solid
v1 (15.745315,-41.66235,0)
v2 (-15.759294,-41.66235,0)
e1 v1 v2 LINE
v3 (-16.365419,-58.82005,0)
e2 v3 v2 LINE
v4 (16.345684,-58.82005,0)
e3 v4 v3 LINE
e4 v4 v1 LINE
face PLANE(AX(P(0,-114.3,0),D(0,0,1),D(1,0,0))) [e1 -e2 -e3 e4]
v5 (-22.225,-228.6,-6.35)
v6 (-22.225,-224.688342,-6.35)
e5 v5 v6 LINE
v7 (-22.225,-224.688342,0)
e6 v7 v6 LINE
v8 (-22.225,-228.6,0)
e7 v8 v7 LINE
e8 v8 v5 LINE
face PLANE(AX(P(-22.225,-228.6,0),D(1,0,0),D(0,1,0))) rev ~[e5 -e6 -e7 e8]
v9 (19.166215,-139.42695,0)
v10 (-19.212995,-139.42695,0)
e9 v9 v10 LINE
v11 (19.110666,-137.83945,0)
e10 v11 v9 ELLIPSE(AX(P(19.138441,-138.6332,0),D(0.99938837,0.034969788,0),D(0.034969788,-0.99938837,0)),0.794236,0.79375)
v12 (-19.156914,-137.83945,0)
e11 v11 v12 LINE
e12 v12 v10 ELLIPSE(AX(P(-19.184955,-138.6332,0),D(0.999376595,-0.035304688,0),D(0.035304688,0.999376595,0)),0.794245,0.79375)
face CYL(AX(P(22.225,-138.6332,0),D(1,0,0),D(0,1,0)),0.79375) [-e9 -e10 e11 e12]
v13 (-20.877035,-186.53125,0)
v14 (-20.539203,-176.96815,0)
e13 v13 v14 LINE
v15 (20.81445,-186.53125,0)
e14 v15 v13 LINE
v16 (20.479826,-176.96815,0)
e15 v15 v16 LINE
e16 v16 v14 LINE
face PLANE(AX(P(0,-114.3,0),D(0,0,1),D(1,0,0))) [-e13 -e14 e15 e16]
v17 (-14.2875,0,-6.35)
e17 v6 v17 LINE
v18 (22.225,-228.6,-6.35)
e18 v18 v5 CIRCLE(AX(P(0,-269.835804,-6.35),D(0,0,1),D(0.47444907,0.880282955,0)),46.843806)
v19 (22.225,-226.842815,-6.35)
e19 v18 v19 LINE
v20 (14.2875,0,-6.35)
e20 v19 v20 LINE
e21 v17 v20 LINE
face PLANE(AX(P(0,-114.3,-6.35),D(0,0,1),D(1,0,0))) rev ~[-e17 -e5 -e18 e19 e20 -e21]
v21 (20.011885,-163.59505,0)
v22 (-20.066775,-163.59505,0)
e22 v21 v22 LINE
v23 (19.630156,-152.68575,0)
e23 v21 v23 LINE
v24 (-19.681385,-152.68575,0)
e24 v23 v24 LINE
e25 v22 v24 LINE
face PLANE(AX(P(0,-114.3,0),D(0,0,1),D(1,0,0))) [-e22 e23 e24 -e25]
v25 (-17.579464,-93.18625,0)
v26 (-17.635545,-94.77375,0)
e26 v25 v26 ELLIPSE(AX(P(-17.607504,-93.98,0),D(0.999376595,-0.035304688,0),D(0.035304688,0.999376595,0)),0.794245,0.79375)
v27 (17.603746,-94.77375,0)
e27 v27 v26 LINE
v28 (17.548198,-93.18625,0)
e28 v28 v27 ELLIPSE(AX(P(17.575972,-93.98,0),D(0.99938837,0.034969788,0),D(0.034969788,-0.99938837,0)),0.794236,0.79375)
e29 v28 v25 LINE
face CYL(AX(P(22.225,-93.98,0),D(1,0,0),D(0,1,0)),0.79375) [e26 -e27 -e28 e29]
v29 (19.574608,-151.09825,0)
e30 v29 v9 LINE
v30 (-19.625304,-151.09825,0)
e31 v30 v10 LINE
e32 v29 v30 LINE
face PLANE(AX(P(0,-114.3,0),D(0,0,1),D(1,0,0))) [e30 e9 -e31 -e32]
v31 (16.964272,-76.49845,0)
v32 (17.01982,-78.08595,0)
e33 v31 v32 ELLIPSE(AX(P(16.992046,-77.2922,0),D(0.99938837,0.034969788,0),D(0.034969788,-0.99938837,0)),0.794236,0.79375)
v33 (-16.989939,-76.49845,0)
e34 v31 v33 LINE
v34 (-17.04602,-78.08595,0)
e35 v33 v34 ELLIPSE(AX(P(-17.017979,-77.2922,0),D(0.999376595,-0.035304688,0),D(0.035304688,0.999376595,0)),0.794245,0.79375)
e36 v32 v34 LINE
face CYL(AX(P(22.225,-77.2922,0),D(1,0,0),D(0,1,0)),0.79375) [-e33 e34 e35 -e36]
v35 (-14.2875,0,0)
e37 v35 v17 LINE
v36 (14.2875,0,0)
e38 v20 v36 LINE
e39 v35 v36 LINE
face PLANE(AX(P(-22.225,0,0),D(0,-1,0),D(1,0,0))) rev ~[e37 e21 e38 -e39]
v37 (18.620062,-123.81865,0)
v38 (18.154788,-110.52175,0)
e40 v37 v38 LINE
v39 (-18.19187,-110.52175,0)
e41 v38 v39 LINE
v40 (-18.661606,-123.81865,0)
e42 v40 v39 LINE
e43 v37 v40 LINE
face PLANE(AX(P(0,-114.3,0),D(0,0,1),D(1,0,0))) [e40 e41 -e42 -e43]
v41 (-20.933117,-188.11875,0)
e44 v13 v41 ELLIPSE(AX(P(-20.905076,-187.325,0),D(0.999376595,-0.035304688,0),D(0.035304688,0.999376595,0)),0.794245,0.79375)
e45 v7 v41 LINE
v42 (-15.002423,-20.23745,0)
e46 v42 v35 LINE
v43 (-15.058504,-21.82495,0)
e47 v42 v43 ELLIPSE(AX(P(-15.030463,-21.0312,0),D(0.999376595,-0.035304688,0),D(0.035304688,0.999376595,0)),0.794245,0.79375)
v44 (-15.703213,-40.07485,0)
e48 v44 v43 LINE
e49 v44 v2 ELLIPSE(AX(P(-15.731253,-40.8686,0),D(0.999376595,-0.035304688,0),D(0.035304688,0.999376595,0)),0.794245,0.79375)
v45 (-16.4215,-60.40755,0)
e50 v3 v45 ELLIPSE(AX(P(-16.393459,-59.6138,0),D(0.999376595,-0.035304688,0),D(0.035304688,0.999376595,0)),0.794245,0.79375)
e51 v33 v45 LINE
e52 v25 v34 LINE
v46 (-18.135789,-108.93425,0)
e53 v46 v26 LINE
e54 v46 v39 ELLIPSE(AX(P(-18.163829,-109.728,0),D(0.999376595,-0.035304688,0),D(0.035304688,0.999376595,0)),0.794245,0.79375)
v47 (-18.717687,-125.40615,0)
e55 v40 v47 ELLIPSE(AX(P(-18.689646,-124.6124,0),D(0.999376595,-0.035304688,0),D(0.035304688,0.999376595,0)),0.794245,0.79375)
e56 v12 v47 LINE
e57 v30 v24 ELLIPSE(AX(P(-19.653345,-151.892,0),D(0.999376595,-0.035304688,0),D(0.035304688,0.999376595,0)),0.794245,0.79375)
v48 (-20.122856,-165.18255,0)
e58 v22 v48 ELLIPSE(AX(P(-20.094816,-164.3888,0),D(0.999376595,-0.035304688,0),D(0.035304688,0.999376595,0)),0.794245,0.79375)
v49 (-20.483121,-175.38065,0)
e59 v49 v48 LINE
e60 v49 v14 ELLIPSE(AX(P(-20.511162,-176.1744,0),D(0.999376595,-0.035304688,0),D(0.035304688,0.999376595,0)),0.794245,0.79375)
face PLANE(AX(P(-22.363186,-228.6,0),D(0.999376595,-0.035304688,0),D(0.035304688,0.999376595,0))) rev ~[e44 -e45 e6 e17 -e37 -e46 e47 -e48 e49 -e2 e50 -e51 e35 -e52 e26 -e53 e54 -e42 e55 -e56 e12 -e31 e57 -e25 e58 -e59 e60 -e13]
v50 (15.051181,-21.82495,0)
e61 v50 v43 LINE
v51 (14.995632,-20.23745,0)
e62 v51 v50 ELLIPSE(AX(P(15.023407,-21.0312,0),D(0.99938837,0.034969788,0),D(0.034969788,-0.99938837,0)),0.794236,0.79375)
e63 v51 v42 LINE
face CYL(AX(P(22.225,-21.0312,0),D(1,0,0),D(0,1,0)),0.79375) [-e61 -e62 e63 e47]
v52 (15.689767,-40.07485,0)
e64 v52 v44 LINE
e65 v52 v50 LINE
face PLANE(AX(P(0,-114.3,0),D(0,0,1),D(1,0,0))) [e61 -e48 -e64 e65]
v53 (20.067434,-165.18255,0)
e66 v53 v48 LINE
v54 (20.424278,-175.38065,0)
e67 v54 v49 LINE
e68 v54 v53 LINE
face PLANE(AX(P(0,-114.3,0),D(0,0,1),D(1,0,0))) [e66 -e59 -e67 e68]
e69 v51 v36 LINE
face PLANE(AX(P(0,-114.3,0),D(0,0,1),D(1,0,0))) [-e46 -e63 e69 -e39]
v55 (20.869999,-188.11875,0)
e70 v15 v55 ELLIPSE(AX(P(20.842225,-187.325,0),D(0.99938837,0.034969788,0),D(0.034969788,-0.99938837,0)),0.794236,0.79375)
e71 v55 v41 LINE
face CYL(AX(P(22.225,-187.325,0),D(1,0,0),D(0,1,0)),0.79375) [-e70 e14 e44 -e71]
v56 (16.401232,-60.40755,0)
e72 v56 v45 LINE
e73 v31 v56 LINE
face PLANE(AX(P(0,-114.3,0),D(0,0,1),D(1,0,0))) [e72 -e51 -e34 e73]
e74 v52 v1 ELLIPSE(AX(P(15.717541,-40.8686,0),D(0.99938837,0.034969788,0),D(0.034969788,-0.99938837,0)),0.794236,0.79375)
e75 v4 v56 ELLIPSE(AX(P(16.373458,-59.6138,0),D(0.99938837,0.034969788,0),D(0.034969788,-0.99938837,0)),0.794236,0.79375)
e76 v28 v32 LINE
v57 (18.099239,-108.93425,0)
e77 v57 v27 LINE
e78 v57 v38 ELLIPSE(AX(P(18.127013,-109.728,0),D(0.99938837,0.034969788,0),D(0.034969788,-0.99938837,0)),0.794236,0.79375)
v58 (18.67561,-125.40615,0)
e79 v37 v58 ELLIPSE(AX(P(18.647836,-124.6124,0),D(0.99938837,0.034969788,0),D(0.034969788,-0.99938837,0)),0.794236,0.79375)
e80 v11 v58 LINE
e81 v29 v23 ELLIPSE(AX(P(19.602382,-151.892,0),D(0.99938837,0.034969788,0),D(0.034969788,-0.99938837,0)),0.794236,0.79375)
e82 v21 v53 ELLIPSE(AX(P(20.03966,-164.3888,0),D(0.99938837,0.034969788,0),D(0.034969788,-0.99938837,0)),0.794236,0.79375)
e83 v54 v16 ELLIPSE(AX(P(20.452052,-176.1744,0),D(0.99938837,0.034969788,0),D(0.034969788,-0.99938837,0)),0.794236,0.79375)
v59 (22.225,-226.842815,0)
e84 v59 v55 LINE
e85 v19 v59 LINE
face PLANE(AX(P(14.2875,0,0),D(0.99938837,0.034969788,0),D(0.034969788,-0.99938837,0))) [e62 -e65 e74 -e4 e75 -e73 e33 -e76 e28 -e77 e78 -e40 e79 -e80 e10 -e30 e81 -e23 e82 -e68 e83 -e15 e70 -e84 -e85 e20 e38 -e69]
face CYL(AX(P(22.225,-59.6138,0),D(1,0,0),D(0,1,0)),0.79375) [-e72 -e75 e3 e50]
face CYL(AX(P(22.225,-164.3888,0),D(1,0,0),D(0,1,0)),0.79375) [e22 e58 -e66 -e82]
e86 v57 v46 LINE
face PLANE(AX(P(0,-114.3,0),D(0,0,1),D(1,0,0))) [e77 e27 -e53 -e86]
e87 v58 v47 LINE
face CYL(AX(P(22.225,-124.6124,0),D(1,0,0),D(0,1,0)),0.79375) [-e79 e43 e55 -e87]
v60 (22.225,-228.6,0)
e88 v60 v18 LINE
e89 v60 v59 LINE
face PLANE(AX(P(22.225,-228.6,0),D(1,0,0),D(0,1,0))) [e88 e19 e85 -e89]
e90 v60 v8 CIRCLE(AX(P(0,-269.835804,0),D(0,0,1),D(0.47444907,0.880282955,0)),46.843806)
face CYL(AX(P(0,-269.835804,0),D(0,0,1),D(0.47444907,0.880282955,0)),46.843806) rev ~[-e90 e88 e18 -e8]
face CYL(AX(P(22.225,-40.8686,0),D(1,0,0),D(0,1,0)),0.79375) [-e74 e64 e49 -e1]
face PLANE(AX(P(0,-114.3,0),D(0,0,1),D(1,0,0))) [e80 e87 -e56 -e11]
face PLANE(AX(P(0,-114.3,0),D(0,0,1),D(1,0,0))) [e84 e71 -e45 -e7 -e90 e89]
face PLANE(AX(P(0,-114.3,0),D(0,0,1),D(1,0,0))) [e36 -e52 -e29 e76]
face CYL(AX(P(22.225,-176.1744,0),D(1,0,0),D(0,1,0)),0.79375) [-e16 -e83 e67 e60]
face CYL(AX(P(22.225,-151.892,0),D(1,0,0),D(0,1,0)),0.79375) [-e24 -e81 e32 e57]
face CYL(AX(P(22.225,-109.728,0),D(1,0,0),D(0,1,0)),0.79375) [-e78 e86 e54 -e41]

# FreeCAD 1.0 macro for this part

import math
import FreeCAD as App
import Part
import Sketcher

V = App.Vector
Q = App.Units.Quantity

doc = App.newDocument("Part")
body = doc.addObject("PartDesign::Body", "Body")

# Sketch on XY plane
sketch1 = body.newObject("Sketcher::SketchObject", "Sketch")
sketch1.AttachmentSupport = (doc.getObject("XY_Plane"), [""])
sketch1.MapMode = "FlatFace"
sketch1.addGeometry([
    Part.LineSegment(V(-22.225, 0, 0), V(-22.225, -228.6, 0)),
    Part.LineSegment(V(-22.225, -228.6, 0), V(22.225, -228.6, 0)),
    Part.LineSegment(V(22.225, -228.6, 0), V(22.225, 0, 0)),
    Part.LineSegment(V(22.225, 0, 0), V(-22.225, 0, 0)),
], False)
sketch1.addConstraint([
    Sketcher.Constraint("Coincident", 0, 2, 1, 1),
    Sketcher.Constraint("Coincident", 1, 2, 2, 1),
    Sketcher.Constraint("Coincident", 2, 2, 3, 1),
    Sketcher.Constraint("Coincident", 3, 2, 0, 1),
    Sketcher.Constraint("Vertical", 0),
    Sketcher.Constraint("Horizontal", 1),
    Sketcher.Constraint("Vertical", 2),
    Sketcher.Constraint("Horizontal", 3),
    Sketcher.Constraint("Symmetric", 2, 2, 3, 2, -1, 1),
    Sketcher.Constraint("DistanceY", 0, 2, 0, 1, Q("9 in")),
    Sketcher.Constraint("DistanceX", 1, 1, 1, 2, Q("1.75 in")),
])
pad1 = body.newObject("PartDesign::Pad", "Pad")
pad1.Profile = sketch1
pad1.Length = Q("0.25 in")
pad1.Reversed = True

# Sketch on YZ plane
sketch2 = body.newObject("Sketcher::SketchObject", "Sketch001")
sketch2.AttachmentSupport = (doc.getObject("YZ_Plane"), [""])
sketch2.MapMode = "FlatFace"
sketch2.AttachmentOffset = App.Placement(V(0, 0, 0.875 * 25.4), App.Rotation())
sketch2.addGeometry([
    Part.ArcOfCircle(Part.Circle(V(-21.0312, 0, 0), V(0, 0, 1), 0.79375), math.radians(-179.999998), math.radians(-90.000002)),  # 0
    Part.ArcOfCircle(Part.Circle(V(-21.0312, 0, 0), V(0, 0, 1), 0.79375), math.radians(-89.999998), math.radians(-0.000002)),  # 1
    Part.ArcOfCircle(Part.Circle(V(-21.0312, 0, 0), V(0, 0, 1), 0.79375), math.radians(0), math.radians(180)),  # 2
    Part.ArcOfCircle(Part.Circle(V(-40.8686, 0, 0), V(0, 0, 1), 0.79375), math.radians(-179.999998), math.radians(-90.000002)),  # 3
    Part.ArcOfCircle(Part.Circle(V(-40.8686, 0, 0), V(0, 0, 1), 0.79375), math.radians(-89.999998), math.radians(-0.000002)),  # 4
    Part.ArcOfCircle(Part.Circle(V(-40.8686, 0, 0), V(0, 0, 1), 0.79375), math.radians(0), math.radians(180)),  # 5
    Part.ArcOfCircle(Part.Circle(V(-59.6138, 0, 0), V(0, 0, 1), 0.79375), math.radians(-179.999998), math.radians(-90.000002)),  # 6
    Part.ArcOfCircle(Part.Circle(V(-59.6138, 0, 0), V(0, 0, 1), 0.79375), math.radians(-89.999998), math.radians(-0.000002)),  # 7
    Part.ArcOfCircle(Part.Circle(V(-59.6138, 0, 0), V(0, 0, 1), 0.79375), math.radians(0), math.radians(180)),  # 8
    Part.ArcOfCircle(Part.Circle(V(-77.2922, 0, 0), V(0, 0, 1), 0.79375), math.radians(-179.999998), math.radians(-90.000002)),  # 9
    Part.ArcOfCircle(Part.Circle(V(-77.2922, 0, 0), V(0, 0, 1), 0.79375), math.radians(-89.999998), math.radians(-0.000002)),  # 10
    Part.ArcOfCircle(Part.Circle(V(-77.2922, 0, 0), V(0, 0, 1), 0.79375), math.radians(0), math.radians(180)),  # 11
    Part.ArcOfCircle(Part.Circle(V(-93.98, 0, 0), V(0, 0, 1), 0.79375), math.radians(-179.999998), math.radians(-90.000002)),  # 12
    Part.ArcOfCircle(Part.Circle(V(-93.98, 0, 0), V(0, 0, 1), 0.79375), math.radians(-89.999998), math.radians(-0.000002)),  # 13
    Part.ArcOfCircle(Part.Circle(V(-93.98, 0, 0), V(0, 0, 1), 0.79375), math.radians(0), math.radians(180)),  # 14
    Part.ArcOfCircle(Part.Circle(V(-109.728, 0, 0), V(0, 0, 1), 0.79375), math.radians(-179.999998), math.radians(-90.000002)),  # 15
    Part.ArcOfCircle(Part.Circle(V(-109.728, 0, 0), V(0, 0, 1), 0.79375), math.radians(-89.999998), math.radians(-0.000002)),  # 16
    Part.ArcOfCircle(Part.Circle(V(-109.728, 0, 0), V(0, 0, 1), 0.79375), math.radians(0), math.radians(180)),  # 17
    Part.ArcOfCircle(Part.Circle(V(-124.6124, 0, 0), V(0, 0, 1), 0.79375), math.radians(-179.999998), math.radians(-90.000002)),  # 18
    Part.ArcOfCircle(Part.Circle(V(-124.6124, 0, 0), V(0, 0, 1), 0.79375), math.radians(-89.999998), math.radians(-0.000002)),  # 19
    Part.ArcOfCircle(Part.Circle(V(-124.6124, 0, 0), V(0, 0, 1), 0.79375), math.radians(0), math.radians(180)),  # 20
    Part.ArcOfCircle(Part.Circle(V(-138.6332, 0, 0), V(0, 0, 1), 0.79375), math.radians(-179.999998), math.radians(-90.000002)),  # 21
    Part.ArcOfCircle(Part.Circle(V(-138.6332, 0, 0), V(0, 0, 1), 0.79375), math.radians(-89.999998), math.radians(-0.000002)),  # 22
    Part.ArcOfCircle(Part.Circle(V(-138.6332, 0, 0), V(0, 0, 1), 0.79375), math.radians(0), math.radians(180)),  # 23
    Part.ArcOfCircle(Part.Circle(V(-151.892, 0, 0), V(0, 0, 1), 0.79375), math.radians(-179.999998), math.radians(-90.000002)),  # 24
    Part.ArcOfCircle(Part.Circle(V(-151.892, 0, 0), V(0, 0, 1), 0.79375), math.radians(-89.999998), math.radians(-0.000002)),  # 25
    Part.ArcOfCircle(Part.Circle(V(-151.892, 0, 0), V(0, 0, 1), 0.79375), math.radians(0), math.radians(180)),  # 26
    Part.ArcOfCircle(Part.Circle(V(-164.3888, 0, 0), V(0, 0, 1), 0.79375), math.radians(-179.999998), math.radians(-90.000002)),  # 27
    Part.ArcOfCircle(Part.Circle(V(-164.3888, 0, 0), V(0, 0, 1), 0.79375), math.radians(-89.999998), math.radians(-0.000002)),  # 28
    Part.ArcOfCircle(Part.Circle(V(-164.3888, 0, 0), V(0, 0, 1), 0.79375), math.radians(0), math.radians(180)),  # 29
    Part.ArcOfCircle(Part.Circle(V(-176.1744, 0, 0), V(0, 0, 1), 0.79375), math.radians(-179.999998), math.radians(-90.000002)),  # 30
    Part.ArcOfCircle(Part.Circle(V(-176.1744, 0, 0), V(0, 0, 1), 0.79375), math.radians(-89.999998), math.radians(-0.000002)),  # 31
    Part.ArcOfCircle(Part.Circle(V(-176.1744, 0, 0), V(0, 0, 1), 0.79375), math.radians(0), math.radians(180)),  # 32
    Part.ArcOfCircle(Part.Circle(V(-187.325, 0, 0), V(0, 0, 1), 0.79375), math.radians(-179.999998), math.radians(-90.000002)),  # 33
    Part.ArcOfCircle(Part.Circle(V(-187.325, 0, 0), V(0, 0, 1), 0.79375), math.radians(-89.999998), math.radians(-0.000002)),  # 34
    Part.ArcOfCircle(Part.Circle(V(-187.325, 0, 0), V(0, 0, 1), 0.79375), math.radians(0), math.radians(180)),  # 35
], False)
sketch2.addConstraint([
    Sketcher.Constraint("Tangent", 0, 2, 1, 1),
    Sketcher.Constraint("Tangent", 1, 2, 2, 1),
    Sketcher.Constraint("Tangent", 2, 2, 0, 1),
    Sketcher.Constraint("Tangent", 3, 2, 4, 1),
    Sketcher.Constraint("Tangent", 4, 2, 5, 1),
    Sketcher.Constraint("Tangent", 5, 2, 3, 1),
    Sketcher.Constraint("Tangent", 6, 2, 7, 1),
    Sketcher.Constraint("Tangent", 7, 2, 8, 1),
    Sketcher.Constraint("Tangent", 8, 2, 6, 1),
    Sketcher.Constraint("Tangent", 9, 2, 10, 1),
    Sketcher.Constraint("Tangent", 10, 2, 11, 1),
    Sketcher.Constraint("Tangent", 11, 2, 9, 1),
    Sketcher.Constraint("Tangent", 12, 2, 13, 1),
    Sketcher.Constraint("Tangent", 13, 2, 14, 1),
    Sketcher.Constraint("Tangent", 14, 2, 12, 1),
    Sketcher.Constraint("Tangent", 15, 2, 16, 1),
    Sketcher.Constraint("Tangent", 16, 2, 17, 1),
    Sketcher.Constraint("Tangent", 17, 2, 15, 1),
    Sketcher.Constraint("Tangent", 18, 2, 19, 1),
    Sketcher.Constraint("Tangent", 19, 2, 20, 1),
    Sketcher.Constraint("Tangent", 20, 2, 18, 1),
    Sketcher.Constraint("Tangent", 21, 2, 22, 1),
    Sketcher.Constraint("Tangent", 22, 2, 23, 1),
    Sketcher.Constraint("Tangent", 23, 2, 21, 1),
    Sketcher.Constraint("Tangent", 24, 2, 25, 1),
    Sketcher.Constraint("Tangent", 25, 2, 26, 1),
    Sketcher.Constraint("Tangent", 26, 2, 24, 1),
    Sketcher.Constraint("Tangent", 27, 2, 28, 1),
    Sketcher.Constraint("Tangent", 28, 2, 29, 1),
    Sketcher.Constraint("Tangent", 29, 2, 27, 1),
    Sketcher.Constraint("Tangent", 30, 2, 31, 1),
    Sketcher.Constraint("Tangent", 31, 2, 32, 1),
    Sketcher.Constraint("Tangent", 32, 2, 30, 1),
    Sketcher.Constraint("Tangent", 33, 2, 34, 1),
    Sketcher.Constraint("Tangent", 34, 2, 35, 1),
    Sketcher.Constraint("Tangent", 35, 2, 33, 1),
    Sketcher.Constraint("Equal", 2, 3),
    Sketcher.Constraint("Equal", 5, 6),
    Sketcher.Constraint("Equal", 8, 9),
    Sketcher.Constraint("Equal", 11, 12),
    Sketcher.Constraint("Equal", 14, 15),
    Sketcher.Constraint("Equal", 17, 18),
    Sketcher.Constraint("Equal", 20, 21),
    Sketcher.Constraint("Equal", 23, 24),
    Sketcher.Constraint("Equal", 26, 27),
    Sketcher.Constraint("Equal", 29, 30),
    Sketcher.Constraint("Equal", 32, 33),
    Sketcher.Constraint("PointOnObject", 0, 3, -1),
    Sketcher.Constraint("PointOnObject", 3, 3, -1),
    Sketcher.Constraint("PointOnObject", 6, 3, -1),
    Sketcher.Constraint("PointOnObject", 9, 3, -1),
    Sketcher.Constraint("PointOnObject", 12, 3, -1),
    Sketcher.Constraint("PointOnObject", 15, 3, -1),
    Sketcher.Constraint("PointOnObject", 18, 3, -1),
    Sketcher.Constraint("PointOnObject", 21, 3, -1),
    Sketcher.Constraint("PointOnObject", 24, 3, -1),
    Sketcher.Constraint("PointOnObject", 27, 3, -1),
    Sketcher.Constraint("PointOnObject", 30, 3, -1),
    Sketcher.Constraint("PointOnObject", 33, 3, -1),
    Sketcher.Constraint("PointOnObject", 1, 2, -1),
    Sketcher.Constraint("PointOnObject", 2, 2, -1),
    Sketcher.Constraint("PointOnObject", 4, 2, -1),
    Sketcher.Constraint("PointOnObject", 5, 2, -1),
    Sketcher.Constraint("PointOnObject", 7, 2, -1),
    Sketcher.Constraint("PointOnObject", 8, 2, -1),
    Sketcher.Constraint("PointOnObject", 10, 2, -1),
    Sketcher.Constraint("PointOnObject", 11, 2, -1),
    Sketcher.Constraint("PointOnObject", 13, 2, -1),
    Sketcher.Constraint("PointOnObject", 14, 2, -1),
    Sketcher.Constraint("PointOnObject", 16, 2, -1),
    Sketcher.Constraint("PointOnObject", 17, 2, -1),
    Sketcher.Constraint("PointOnObject", 19, 2, -1),
    Sketcher.Constraint("PointOnObject", 20, 2, -1),
    Sketcher.Constraint("PointOnObject", 22, 2, -1),
    Sketcher.Constraint("PointOnObject", 23, 2, -1),
    Sketcher.Constraint("PointOnObject", 25, 2, -1),
    Sketcher.Constraint("PointOnObject", 26, 2, -1),
    Sketcher.Constraint("PointOnObject", 28, 2, -1),
    Sketcher.Constraint("PointOnObject", 29, 2, -1),
    Sketcher.Constraint("PointOnObject", 31, 2, -1),
    Sketcher.Constraint("PointOnObject", 32, 2, -1),
    Sketcher.Constraint("PointOnObject", 34, 2, -1),
    Sketcher.Constraint("PointOnObject", 35, 2, -1),
    Sketcher.Constraint("Vertical", 2, 3, 0, 2),
    Sketcher.Constraint("Vertical", 5, 3, 3, 2),
    Sketcher.Constraint("Vertical", 8, 3, 6, 2),
    Sketcher.Constraint("Vertical", 11, 3, 9, 2),
    Sketcher.Constraint("Vertical", 14, 3, 12, 2),
    Sketcher.Constraint("Vertical", 17, 3, 15, 2),
    Sketcher.Constraint("Vertical", 20, 3, 18, 2),
    Sketcher.Constraint("Vertical", 23, 3, 21, 2),
    Sketcher.Constraint("Vertical", 26, 3, 24, 2),
    Sketcher.Constraint("Vertical", 29, 3, 27, 2),
    Sketcher.Constraint("Vertical", 32, 3, 30, 2),
    Sketcher.Constraint("Vertical", 35, 3, 33, 2),
    Sketcher.Constraint("Radius", 0, Q("0.03125 in")),
    Sketcher.Constraint("DistanceX", 12, 3, -1, 1, Q("3.7 in")),
    Sketcher.Constraint("DistanceX", 15, 3, -1, 1, Q("4.32 in")),
    Sketcher.Constraint("DistanceX", 24, 3, -1, 1, Q("5.98 in")),
    Sketcher.Constraint("DistanceX", 0, 3, -1, 1, Q("0.828 in")),
    Sketcher.Constraint("DistanceX", 3, 3, -1, 1, Q("1.609 in")),
    Sketcher.Constraint("DistanceX", 6, 3, -1, 1, Q("2.347 in")),
    Sketcher.Constraint("DistanceX", 9, 3, -1, 1, Q("3.043 in")),
    Sketcher.Constraint("DistanceX", 18, 3, -1, 1, Q("4.906 in")),
    Sketcher.Constraint("DistanceX", 21, 3, -1, 1, Q("5.458 in")),
    Sketcher.Constraint("DistanceX", 27, 3, -1, 1, Q("6.472 in")),
    Sketcher.Constraint("DistanceX", 30, 3, -1, 1, Q("6.936 in")),
    Sketcher.Constraint("DistanceX", 33, 3, -1, 1, Q("7.375 in")),
])
pad2 = body.newObject("PartDesign::Pad", "Pad001")
pad2.Profile = sketch2
pad2.Length = Q("1.75 in")
pad2.Reversed = True

# Sketch on XY plane
sketch3 = body.newObject("Sketcher::SketchObject", "Sketch002")
sketch3.AttachmentSupport = (doc.getObject("XY_Plane"), [""])
sketch3.MapMode = "FlatFace"
sketch3.addGeometry([
    Part.LineSegment(V(22.286486, 0, 0), V(14.2875, 0, 0)),  # 0
    Part.LineSegment(V(14.2875, 0, 0), V(22.286486, -228.6, 0)),  # 1
    Part.LineSegment(V(22.286486, -228.6, 0), V(22.286486, 0, 0)),  # 2
    Part.LineSegment(V(-14.2875, 0, 0), V(-22.363186, 0, 0)),  # 3
    Part.LineSegment(V(-22.363186, 0, 0), V(-22.363186, -228.6, 0)),  # 4
    Part.LineSegment(V(-22.363186, -228.6, 0), V(-14.2875, 0, 0)),  # 5
], False)
sketch3.addConstraint([
    Sketcher.Constraint("Coincident", 0, 2, 1, 1),
    Sketcher.Constraint("Coincident", 1, 2, 2, 1),
    Sketcher.Constraint("Coincident", 2, 2, 0, 1),
    Sketcher.Constraint("Coincident", 3, 2, 4, 1),
    Sketcher.Constraint("Coincident", 4, 2, 5, 1),
    Sketcher.Constraint("Coincident", 5, 2, 3, 1),
    Sketcher.Constraint("Horizontal", 0),
    Sketcher.Constraint("Vertical", 2),
    Sketcher.Constraint("Horizontal", 3),
    Sketcher.Constraint("Vertical", 4),
    Sketcher.Constraint("Symmetric", 0, 2, 5, 2, -1, 1),
    Sketcher.Constraint("PointOnObject", 0, 2, -1),
    Sketcher.Constraint("Horizontal", 1, 2, 4, 2),
    Sketcher.Constraint("DistanceY", 2, 1, 2, 2, Q("9 in")),
    Sketcher.Constraint("DistanceX", -1, 1, 0, 2, Q("0.5625 in")),
    Sketcher.Constraint("Distance", 5, Q("228.742599 mm")),
    Sketcher.Constraint("DistanceX", 0, 2, 0, 1, Q("7.998986 mm")),
])
pocket1 = body.newObject("PartDesign::Pocket", "Pocket")
pocket1.Profile = sketch3
pocket1.Length = Q("1 in")
pocket1.Midplane = True

# Sketch on XY plane
sketch4 = body.newObject("Sketcher::SketchObject", "Sketch003")
sketch4.AttachmentSupport = (doc.getObject("XY_Plane"), [""])
sketch4.MapMode = "FlatFace"
sketch4.addGeometry([
    Part.LineSegment(V(-22.225, -228.6, 0), V(22.225, -228.6, 0)),
    Part.ArcOfCircle(Part.Circle(V(0, -269.835804, 0), V(0, 0, 1), 46.843806), math.radians(61.676515), math.radians(118.323485)),
], False)
sketch4.addConstraint([
    Sketcher.Constraint("Coincident", 0, 1, 1, 2),
    Sketcher.Constraint("Coincident", 1, 1, 0, 2),
    Sketcher.Constraint("Horizontal", 0),
    Sketcher.Constraint("PointOnObject", 1, 3, -2),
    Sketcher.Constraint("DistanceY", 0, 1, -1, 1, Q("9 in")),
    Sketcher.Constraint("DistanceX", 0, 1, 0, 2, Q("1.75 in")),
    Sketcher.Constraint("Radius", 1, Q("46.843806 mm")),
])
pocket2 = body.newObject("PartDesign::Pocket", "Pocket001")
pocket2.Profile = sketch4
pocket2.Length = Q("1 in")

doc.recompute()
